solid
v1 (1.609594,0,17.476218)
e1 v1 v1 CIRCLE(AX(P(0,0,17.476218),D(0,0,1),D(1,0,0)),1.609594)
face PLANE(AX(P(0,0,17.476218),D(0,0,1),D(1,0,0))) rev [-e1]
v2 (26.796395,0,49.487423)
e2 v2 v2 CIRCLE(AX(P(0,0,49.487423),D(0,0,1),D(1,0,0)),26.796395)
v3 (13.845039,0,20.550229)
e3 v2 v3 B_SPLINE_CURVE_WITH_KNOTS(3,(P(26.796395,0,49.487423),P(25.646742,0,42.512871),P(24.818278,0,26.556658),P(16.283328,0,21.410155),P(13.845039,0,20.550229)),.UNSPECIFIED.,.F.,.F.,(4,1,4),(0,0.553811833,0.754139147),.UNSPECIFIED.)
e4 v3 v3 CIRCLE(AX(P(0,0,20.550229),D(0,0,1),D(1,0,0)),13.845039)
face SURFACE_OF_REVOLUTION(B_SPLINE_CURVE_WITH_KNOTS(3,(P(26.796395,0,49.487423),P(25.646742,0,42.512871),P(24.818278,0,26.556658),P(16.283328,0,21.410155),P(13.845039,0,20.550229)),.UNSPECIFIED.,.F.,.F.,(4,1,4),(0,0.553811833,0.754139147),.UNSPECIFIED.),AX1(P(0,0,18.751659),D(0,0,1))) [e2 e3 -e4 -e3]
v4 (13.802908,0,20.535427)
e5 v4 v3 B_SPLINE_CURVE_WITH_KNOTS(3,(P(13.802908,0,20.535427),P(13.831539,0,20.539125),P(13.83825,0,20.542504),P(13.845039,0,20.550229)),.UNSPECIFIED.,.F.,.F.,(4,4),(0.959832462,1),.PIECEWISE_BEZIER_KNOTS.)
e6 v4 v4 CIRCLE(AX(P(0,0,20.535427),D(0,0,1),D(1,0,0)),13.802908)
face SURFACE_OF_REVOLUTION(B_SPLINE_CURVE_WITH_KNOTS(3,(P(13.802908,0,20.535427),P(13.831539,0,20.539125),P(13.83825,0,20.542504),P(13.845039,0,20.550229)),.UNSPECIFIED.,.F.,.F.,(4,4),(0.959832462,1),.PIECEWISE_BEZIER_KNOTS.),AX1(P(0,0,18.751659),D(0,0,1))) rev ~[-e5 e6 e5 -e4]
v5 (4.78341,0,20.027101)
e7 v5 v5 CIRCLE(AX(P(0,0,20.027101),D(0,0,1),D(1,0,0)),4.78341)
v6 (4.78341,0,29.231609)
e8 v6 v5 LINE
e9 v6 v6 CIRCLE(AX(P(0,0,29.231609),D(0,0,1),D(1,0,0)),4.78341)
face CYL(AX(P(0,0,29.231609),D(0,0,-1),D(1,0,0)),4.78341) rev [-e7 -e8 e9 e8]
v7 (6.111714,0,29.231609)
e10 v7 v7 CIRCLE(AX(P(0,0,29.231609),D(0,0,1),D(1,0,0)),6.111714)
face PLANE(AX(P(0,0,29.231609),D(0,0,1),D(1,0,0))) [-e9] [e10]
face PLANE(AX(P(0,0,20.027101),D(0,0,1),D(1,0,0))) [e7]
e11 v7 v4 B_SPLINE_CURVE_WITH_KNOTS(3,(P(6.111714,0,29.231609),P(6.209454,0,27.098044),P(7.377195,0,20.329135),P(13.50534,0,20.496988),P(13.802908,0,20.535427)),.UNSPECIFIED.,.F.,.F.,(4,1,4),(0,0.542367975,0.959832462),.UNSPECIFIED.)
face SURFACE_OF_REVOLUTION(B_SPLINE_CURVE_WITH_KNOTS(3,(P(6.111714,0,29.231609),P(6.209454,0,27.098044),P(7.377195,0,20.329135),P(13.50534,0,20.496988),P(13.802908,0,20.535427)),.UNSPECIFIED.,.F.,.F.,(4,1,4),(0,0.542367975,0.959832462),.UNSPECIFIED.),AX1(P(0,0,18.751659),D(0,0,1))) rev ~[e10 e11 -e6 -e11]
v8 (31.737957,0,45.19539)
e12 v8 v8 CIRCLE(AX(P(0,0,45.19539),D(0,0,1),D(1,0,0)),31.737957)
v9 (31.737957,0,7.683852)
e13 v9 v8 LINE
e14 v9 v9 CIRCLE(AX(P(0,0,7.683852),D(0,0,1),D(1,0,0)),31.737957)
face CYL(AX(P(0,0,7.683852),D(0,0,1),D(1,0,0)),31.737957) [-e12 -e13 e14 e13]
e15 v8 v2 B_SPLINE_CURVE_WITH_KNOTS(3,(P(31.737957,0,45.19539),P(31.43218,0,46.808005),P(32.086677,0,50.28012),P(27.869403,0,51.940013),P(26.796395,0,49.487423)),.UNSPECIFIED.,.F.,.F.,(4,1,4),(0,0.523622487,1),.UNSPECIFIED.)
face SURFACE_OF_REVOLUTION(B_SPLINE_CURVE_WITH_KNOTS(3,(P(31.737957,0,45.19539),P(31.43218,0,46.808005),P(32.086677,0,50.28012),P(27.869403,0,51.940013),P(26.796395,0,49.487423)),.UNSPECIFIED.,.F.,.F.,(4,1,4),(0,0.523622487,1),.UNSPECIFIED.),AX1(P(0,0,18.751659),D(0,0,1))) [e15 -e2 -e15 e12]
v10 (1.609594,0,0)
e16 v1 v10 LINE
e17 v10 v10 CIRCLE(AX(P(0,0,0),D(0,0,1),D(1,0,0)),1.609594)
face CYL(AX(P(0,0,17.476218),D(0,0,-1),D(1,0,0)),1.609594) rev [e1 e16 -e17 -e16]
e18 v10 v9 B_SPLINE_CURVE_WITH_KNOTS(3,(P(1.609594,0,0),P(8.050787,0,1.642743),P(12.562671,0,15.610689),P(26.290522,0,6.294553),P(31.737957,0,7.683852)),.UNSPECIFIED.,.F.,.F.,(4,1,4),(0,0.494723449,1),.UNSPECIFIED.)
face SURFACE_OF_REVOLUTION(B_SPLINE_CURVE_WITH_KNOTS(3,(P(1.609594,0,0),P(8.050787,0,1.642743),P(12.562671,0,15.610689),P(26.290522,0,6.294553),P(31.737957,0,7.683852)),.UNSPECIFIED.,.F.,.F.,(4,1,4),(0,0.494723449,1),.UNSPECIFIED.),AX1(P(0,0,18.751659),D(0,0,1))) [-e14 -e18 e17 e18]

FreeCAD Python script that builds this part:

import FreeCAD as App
import Part
import Sketcher
from FreeCAD import Vector

doc = App.newDocument("Part")
body = doc.addObject("PartDesign::Body", "Body")

# Sketch on XZ plane
sketch1 = body.newObject("Sketcher::SketchObject", "Sketch")
sketch1.AttachmentSupport = (doc.getObject("XZ_Plane"), [""])
sketch1.MapMode = "FlatFace"
sketch1.addGeometry(Part.LineSegment(Vector(1.609594, 17.476218, 0), Vector(1.609594, 0, 0)), False)
sketch1.addGeometry(Part.BSplineCurve([Vector(1.609594, 0, 0), Vector(8.050787, 1.642743, 0), Vector(12.562671, 15.610689, 0), Vector(26.290522, 6.294553, 0), Vector(31.737957, 7.683852, 0)], [4, 1, 4], [0, 0.494723449, 1], False, 3, [1, 1, 1, 1, 1], False), False)
sketch1.addGeometry(Part.LineSegment(Vector(31.737957, 7.683852, 0), Vector(31.737957, 45.19539, 0)), False)
sketch1.addGeometry(Part.BSplineCurve([Vector(31.737957, 45.19539, 0), Vector(31.43218, 46.808005, 0), Vector(32.086677, 50.28012, 0), Vector(27.869403, 51.940013, 0), Vector(26.796395, 49.487423, 0)], [4, 1, 4], [0, 0.523622487, 1], False, 3, [1, 1, 1, 1, 1], False), False)
sketch1.addGeometry(Part.BSplineCurve([Vector(26.796395, 49.487423, 0), Vector(25.646742, 42.512871, 0), Vector(24.818278, 26.556658, 0), Vector(16.283328, 21.410155, 0), Vector(13.845039, 20.550229, 0)], [4, 1, 4], [0, 0.553811833, 0.754139147], False, 3, [1, 1, 1, 1, 1], False), False)
sketch1.addGeometry(Part.BSplineCurve([Vector(13.802908, 20.535427, 0), Vector(13.831539, 20.539125, 0), Vector(13.83825, 20.542504, 0), Vector(13.845039, 20.550229, 0)], [4, 4], [0.959832462, 1], False, 3, [1, 1, 1, 1], False), False)
sketch1.addGeometry(Part.BSplineCurve([Vector(6.111714, 29.231609, 0), Vector(6.209454, 27.098044, 0), Vector(7.377195, 20.329135, 0), Vector(13.50534, 20.496988, 0), Vector(13.802908, 20.535427, 0)], [4, 1, 4], [0, 0.542367975, 0.959832462], False, 3, [1, 1, 1, 1, 1], False), False)
sketch1.addGeometry(Part.LineSegment(Vector(6.111714, 29.231609, 0), Vector(4.78341, 29.231609, 0)), False)
sketch1.addGeometry(Part.LineSegment(Vector(4.78341, 29.231609, 0), Vector(4.78341, 20.027101, 0)), False)
sketch1.addGeometry(Part.LineSegment(Vector(4.78341, 20.027101, 0), Vector(0, 20.027101, 0)), False)
sketch1.addGeometry(Part.LineSegment(Vector(0, 20.027101, 0), Vector(0, 17.476218, 0)), False)
sketch1.addGeometry(Part.LineSegment(Vector(0, 17.476218, 0), Vector(1.609594, 17.476218, 0)), False)
sketch1.addConstraint(Sketcher.Constraint("Block", 1))
sketch1.addConstraint(Sketcher.Constraint("Block", 3))
sketch1.addConstraint(Sketcher.Constraint("Block", 4))
sketch1.addConstraint(Sketcher.Constraint("Block", 5))
sketch1.addConstraint(Sketcher.Constraint("Block", 6))
sketch1.addConstraint(Sketcher.Constraint("Coincident", 0, 2, 1, 1))
sketch1.addConstraint(Sketcher.Constraint("Coincident", 1, 2, 2, 1))
sketch1.addConstraint(Sketcher.Constraint("Coincident", 2, 2, 3, 1))
sketch1.addConstraint(Sketcher.Constraint("Coincident", 6, 1, 7, 1))
sketch1.addConstraint(Sketcher.Constraint("Coincident", 7, 2, 8, 1))
sketch1.addConstraint(Sketcher.Constraint("Coincident", 8, 2, 9, 1))
sketch1.addConstraint(Sketcher.Constraint("Coincident", 9, 2, 10, 1))
sketch1.addConstraint(Sketcher.Constraint("Coincident", 10, 2, 11, 1))
sketch1.addConstraint(Sketcher.Constraint("Coincident", 11, 2, 0, 1))
sketch1.addConstraint(Sketcher.Constraint("Vertical", 0))
sketch1.addConstraint(Sketcher.Constraint("Horizontal", 7))
sketch1.addConstraint(Sketcher.Constraint("Vertical", 8))
sketch1.addConstraint(Sketcher.Constraint("Horizontal", 9))
sketch1.addConstraint(Sketcher.Constraint("Vertical", 10))
sketch1.addConstraint(Sketcher.Constraint("Horizontal", 11))
sketch1.addConstraint(Sketcher.Constraint("PointOnObject", 9, 2, -2))
sketch1.addConstraint(Sketcher.Constraint("DistanceX", 9, 2, 9, 1, 4.78341))
sketch1.addConstraint(Sketcher.Constraint("DistanceY", -1, 1, 8, 2, 20.027101))
sketch1.addConstraint(Sketcher.Constraint("DistanceY", 0, 2, 0, 1, 17.476218))
revolution = body.newObject("PartDesign::Revolution", "Revolution")
revolution.Profile = sketch1
revolution.ReferenceAxis = (sketch1, ["V_Axis"])
revolution.Angle = 360

doc.recompute()
